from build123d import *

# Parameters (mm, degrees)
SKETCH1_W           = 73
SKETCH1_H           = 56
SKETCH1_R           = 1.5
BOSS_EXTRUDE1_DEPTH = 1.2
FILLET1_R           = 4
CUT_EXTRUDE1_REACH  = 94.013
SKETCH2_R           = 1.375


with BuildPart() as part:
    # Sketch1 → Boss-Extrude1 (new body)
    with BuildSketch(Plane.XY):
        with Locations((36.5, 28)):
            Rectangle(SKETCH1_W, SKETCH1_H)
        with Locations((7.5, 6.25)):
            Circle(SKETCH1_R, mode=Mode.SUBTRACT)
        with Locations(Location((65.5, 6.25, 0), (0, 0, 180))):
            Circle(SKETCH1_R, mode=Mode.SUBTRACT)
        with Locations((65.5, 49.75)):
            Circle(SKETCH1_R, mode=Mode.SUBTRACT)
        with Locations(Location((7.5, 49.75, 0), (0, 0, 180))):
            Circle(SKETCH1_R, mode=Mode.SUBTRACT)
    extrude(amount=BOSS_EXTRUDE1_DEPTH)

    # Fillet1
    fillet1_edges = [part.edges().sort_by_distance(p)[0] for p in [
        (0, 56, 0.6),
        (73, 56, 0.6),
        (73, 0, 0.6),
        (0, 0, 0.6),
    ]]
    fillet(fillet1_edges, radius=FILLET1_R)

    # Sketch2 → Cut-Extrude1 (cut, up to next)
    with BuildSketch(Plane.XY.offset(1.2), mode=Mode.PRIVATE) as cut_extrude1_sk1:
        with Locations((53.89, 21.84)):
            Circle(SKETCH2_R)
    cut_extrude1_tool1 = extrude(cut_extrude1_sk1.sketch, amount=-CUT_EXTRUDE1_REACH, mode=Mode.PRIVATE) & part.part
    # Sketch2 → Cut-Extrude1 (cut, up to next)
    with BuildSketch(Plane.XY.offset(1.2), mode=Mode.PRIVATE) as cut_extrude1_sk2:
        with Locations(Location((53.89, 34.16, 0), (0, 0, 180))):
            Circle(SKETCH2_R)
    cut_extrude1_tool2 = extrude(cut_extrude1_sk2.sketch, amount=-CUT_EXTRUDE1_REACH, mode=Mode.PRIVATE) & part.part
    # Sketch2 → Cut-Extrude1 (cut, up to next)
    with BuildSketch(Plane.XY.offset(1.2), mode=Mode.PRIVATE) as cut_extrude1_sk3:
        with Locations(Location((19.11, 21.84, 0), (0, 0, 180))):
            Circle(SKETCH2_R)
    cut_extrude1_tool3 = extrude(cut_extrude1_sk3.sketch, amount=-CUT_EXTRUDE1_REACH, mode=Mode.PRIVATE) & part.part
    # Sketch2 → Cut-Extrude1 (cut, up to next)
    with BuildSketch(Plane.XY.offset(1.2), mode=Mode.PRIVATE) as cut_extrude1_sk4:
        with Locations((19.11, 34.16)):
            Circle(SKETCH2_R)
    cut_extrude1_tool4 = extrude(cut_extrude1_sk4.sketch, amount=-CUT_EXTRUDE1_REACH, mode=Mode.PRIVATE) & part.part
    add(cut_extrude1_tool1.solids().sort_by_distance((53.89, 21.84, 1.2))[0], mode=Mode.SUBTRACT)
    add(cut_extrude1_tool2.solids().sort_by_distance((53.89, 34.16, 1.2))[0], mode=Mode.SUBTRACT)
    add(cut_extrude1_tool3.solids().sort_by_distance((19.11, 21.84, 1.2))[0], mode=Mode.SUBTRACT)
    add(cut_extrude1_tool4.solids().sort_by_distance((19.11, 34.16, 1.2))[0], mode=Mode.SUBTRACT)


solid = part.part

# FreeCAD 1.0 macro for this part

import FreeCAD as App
import Part
import Sketcher

V = App.Vector


def edges_at(feature, points):
    """Names of the edges that pass closest to the given points."""
    edges = feature.Shape.Edges
    near = lambda p: min(range(len(edges)), key=lambda i: edges[i].distToShape(Part.Vertex(*p))[0])
    return sorted({f"Edge{near(p) + 1}" for p in points})

doc = App.newDocument("Part")
params = doc.addObject("Spreadsheet::Sheet", "Params")
for row, (alias, value) in enumerate([
    ("sketch1_diameter", "3 mm"),
    ("sketch1_width", "73 mm"),
    ("sketch1_height", "56 mm"),
    ("pad1_length", "1.2 mm"),
    ("fillet_radius", "4 mm"),
    ("sketch2_diameter", "2.75 mm"),
    ("sketch3_diameter", "2.75 mm"),
    ("sketch4_diameter", "2.75 mm"),
    ("sketch5_diameter", "2.75 mm"),
], start=1):
    params.set(f"A{row}", alias)
    params.set(f"B{row}", "=" + value)
    params.setAlias(f"B{row}", alias)

body = doc.addObject("PartDesign::Body", "Body")

# Sketch on XY plane
sketch1 = body.newObject("Sketcher::SketchObject", "Sketch")
sketch1.AttachmentSupport = (doc.getObject("XY_Plane"), [""])
sketch1.MapMode = "FlatFace"
sketch1.addGeometry([
    Part.LineSegment(V(0, 56, 0), V(0, 0, 0)),  # 0
    Part.LineSegment(V(0, 0, 0), V(73, 0, 0)),  # 1
    Part.LineSegment(V(73, 0, 0), V(73, 56, 0)),  # 2
    Part.LineSegment(V(73, 56, 0), V(0, 56, 0)),  # 3
    Part.Circle(V(7.5, 6.2, 0), V(0, 0, 1), 1.5),  # 4
    Part.Circle(V(65.5, 6.2, 0), V(0, 0, 1), 1.5),  # 5
    Part.Circle(V(7.5, 49.8, 0), V(0, 0, 1), 1.5),  # 6
    Part.Circle(V(65.5, 49.8, 0), V(0, 0, 1), 1.5),  # 7
], False)
sketch1.addConstraint([
    Sketcher.Constraint("Coincident", 0, 2, 1, 1),
    Sketcher.Constraint("Coincident", 1, 2, 2, 1),
    Sketcher.Constraint("Coincident", 2, 2, 3, 1),
    Sketcher.Constraint("Coincident", 3, 2, 0, 1),
    Sketcher.Constraint("Vertical", 0),
    Sketcher.Constraint("Horizontal", 1),
    Sketcher.Constraint("Vertical", 2),
    Sketcher.Constraint("Horizontal", 3),
    Sketcher.Constraint("Coincident", 0, 2, -1, 1),
    Sketcher.Constraint("Equal", 4, 5),
    Sketcher.Constraint("Equal", 5, 6),
    Sketcher.Constraint("Equal", 6, 7),
    Sketcher.Constraint("Horizontal", 4, 3, 5, 3),
    Sketcher.Constraint("Horizontal", 6, 3, 7, 3),
    Sketcher.Constraint("Vertical", 4, 3, 6, 3),
    Sketcher.Constraint("Vertical", 5, 3, 7, 3),
    Sketcher.Constraint("Diameter", 4, 3.0),
    Sketcher.Constraint("DistanceX", 1, 1, 1, 2, 73.0),
    Sketcher.Constraint("DistanceY", 0, 2, 0, 1, 56.0),
    Sketcher.Constraint("DistanceX", 4, 3, 5, 3, 58.0),
    Sketcher.Constraint("DistanceX", -1, 1, 4, 3, 7.5),
    Sketcher.Constraint("DistanceY", 4, 3, 6, 3, 43.5),
    Sketcher.Constraint("DistanceY", -1, 1, 4, 3, 6.25),
])
sketch1.setExpression("Constraints[16]", "Params.sketch1_diameter")
sketch1.setExpression("Constraints[17]", "Params.sketch1_width")
sketch1.setExpression("Constraints[18]", "Params.sketch1_height")
pad1 = body.newObject("PartDesign::Pad", "Pad")
pad1.Profile = sketch1
pad1.setExpression("Length", "Params.pad1_length")
doc.recompute()

fillet = body.newObject("PartDesign::Fillet", "Fillet")
fillet.Base = (pad1, edges_at(pad1, [
    (0, 56, 0.6),
    (73, 56, 0.6),
    (73, 0, 0.6),
    (0, 0, 0.6),
]))
fillet.setExpression("Radius", "Params.fillet_radius")

# Sketch on XY plane
sketch2 = body.newObject("Sketcher::SketchObject", "Sketch001")
sketch2.AttachmentSupport = (doc.getObject("XY_Plane"), [""])
sketch2.MapMode = "FlatFace"
sketch2.AttachmentOffset = App.Placement(V(0, 0, 1.2), App.Rotation())
sketch2.addGeometry(Part.Circle(V(53.9, 21.8, 0), V(0, 0, 1), 1.4), False)
sketch2.addConstraint([
    Sketcher.Constraint("Diameter", 0, 2.75),
    Sketcher.Constraint("DistanceX", -1, 1, 0, 3, 53.89),
    Sketcher.Constraint("DistanceY", -1, 1, 0, 3, 21.84),
])
sketch2.setExpression("Constraints[0]", "Params.sketch2_diameter")
pocket1 = body.newObject("PartDesign::Pocket", "Pocket")
pocket1.Profile = sketch2
pocket1.Type = "UpToFirst"

# Sketch on XY plane
sketch3 = body.newObject("Sketcher::SketchObject", "Sketch002")
sketch3.AttachmentSupport = (doc.getObject("XY_Plane"), [""])
sketch3.MapMode = "FlatFace"
sketch3.AttachmentOffset = App.Placement(V(0, 0, 1.2), App.Rotation())
sketch3.addGeometry(Part.Circle(V(53.9, 34.2, 0), V(0, 0, 1), 1.4), False)
sketch3.addConstraint([
    Sketcher.Constraint("Diameter", 0, 2.75),
    Sketcher.Constraint("DistanceX", -1, 1, 0, 3, 53.89),
    Sketcher.Constraint("DistanceY", -1, 1, 0, 3, 34.16),
])
sketch3.setExpression("Constraints[0]", "Params.sketch3_diameter")
pocket2 = body.newObject("PartDesign::Pocket", "Pocket001")
pocket2.Profile = sketch3
pocket2.Type = "UpToFirst"

# Sketch on XY plane
sketch4 = body.newObject("Sketcher::SketchObject", "Sketch003")
sketch4.AttachmentSupport = (doc.getObject("XY_Plane"), [""])
sketch4.MapMode = "FlatFace"
sketch4.AttachmentOffset = App.Placement(V(0, 0, 1.2), App.Rotation())
sketch4.addGeometry(Part.Circle(V(19.1, 21.8, 0), V(0, 0, 1), 1.4), False)
sketch4.addConstraint([
    Sketcher.Constraint("Diameter", 0, 2.75),
    Sketcher.Constraint("DistanceX", -1, 1, 0, 3, 19.11),
    Sketcher.Constraint("DistanceY", -1, 1, 0, 3, 21.84),
])
sketch4.setExpression("Constraints[0]", "Params.sketch4_diameter")
pocket3 = body.newObject("PartDesign::Pocket", "Pocket002")
pocket3.Profile = sketch4
pocket3.Type = "UpToFirst"

# Sketch on XY plane
sketch5 = body.newObject("Sketcher::SketchObject", "Sketch004")
sketch5.AttachmentSupport = (doc.getObject("XY_Plane"), [""])
sketch5.MapMode = "FlatFace"
sketch5.AttachmentOffset = App.Placement(V(0, 0, 1.2), App.Rotation())
sketch5.addGeometry(Part.Circle(V(19.1, 34.2, 0), V(0, 0, 1), 1.4), False)
sketch5.addConstraint([
    Sketcher.Constraint("Diameter", 0, 2.75),
    Sketcher.Constraint("DistanceX", -1, 1, 0, 3, 19.11),
    Sketcher.Constraint("DistanceY", -1, 1, 0, 3, 34.16),
])
sketch5.setExpression("Constraints[0]", "Params.sketch5_diameter")
pocket4 = body.newObject("PartDesign::Pocket", "Pocket003")
pocket4.Profile = sketch5
pocket4.Type = "UpToFirst"

doc.recompute()
